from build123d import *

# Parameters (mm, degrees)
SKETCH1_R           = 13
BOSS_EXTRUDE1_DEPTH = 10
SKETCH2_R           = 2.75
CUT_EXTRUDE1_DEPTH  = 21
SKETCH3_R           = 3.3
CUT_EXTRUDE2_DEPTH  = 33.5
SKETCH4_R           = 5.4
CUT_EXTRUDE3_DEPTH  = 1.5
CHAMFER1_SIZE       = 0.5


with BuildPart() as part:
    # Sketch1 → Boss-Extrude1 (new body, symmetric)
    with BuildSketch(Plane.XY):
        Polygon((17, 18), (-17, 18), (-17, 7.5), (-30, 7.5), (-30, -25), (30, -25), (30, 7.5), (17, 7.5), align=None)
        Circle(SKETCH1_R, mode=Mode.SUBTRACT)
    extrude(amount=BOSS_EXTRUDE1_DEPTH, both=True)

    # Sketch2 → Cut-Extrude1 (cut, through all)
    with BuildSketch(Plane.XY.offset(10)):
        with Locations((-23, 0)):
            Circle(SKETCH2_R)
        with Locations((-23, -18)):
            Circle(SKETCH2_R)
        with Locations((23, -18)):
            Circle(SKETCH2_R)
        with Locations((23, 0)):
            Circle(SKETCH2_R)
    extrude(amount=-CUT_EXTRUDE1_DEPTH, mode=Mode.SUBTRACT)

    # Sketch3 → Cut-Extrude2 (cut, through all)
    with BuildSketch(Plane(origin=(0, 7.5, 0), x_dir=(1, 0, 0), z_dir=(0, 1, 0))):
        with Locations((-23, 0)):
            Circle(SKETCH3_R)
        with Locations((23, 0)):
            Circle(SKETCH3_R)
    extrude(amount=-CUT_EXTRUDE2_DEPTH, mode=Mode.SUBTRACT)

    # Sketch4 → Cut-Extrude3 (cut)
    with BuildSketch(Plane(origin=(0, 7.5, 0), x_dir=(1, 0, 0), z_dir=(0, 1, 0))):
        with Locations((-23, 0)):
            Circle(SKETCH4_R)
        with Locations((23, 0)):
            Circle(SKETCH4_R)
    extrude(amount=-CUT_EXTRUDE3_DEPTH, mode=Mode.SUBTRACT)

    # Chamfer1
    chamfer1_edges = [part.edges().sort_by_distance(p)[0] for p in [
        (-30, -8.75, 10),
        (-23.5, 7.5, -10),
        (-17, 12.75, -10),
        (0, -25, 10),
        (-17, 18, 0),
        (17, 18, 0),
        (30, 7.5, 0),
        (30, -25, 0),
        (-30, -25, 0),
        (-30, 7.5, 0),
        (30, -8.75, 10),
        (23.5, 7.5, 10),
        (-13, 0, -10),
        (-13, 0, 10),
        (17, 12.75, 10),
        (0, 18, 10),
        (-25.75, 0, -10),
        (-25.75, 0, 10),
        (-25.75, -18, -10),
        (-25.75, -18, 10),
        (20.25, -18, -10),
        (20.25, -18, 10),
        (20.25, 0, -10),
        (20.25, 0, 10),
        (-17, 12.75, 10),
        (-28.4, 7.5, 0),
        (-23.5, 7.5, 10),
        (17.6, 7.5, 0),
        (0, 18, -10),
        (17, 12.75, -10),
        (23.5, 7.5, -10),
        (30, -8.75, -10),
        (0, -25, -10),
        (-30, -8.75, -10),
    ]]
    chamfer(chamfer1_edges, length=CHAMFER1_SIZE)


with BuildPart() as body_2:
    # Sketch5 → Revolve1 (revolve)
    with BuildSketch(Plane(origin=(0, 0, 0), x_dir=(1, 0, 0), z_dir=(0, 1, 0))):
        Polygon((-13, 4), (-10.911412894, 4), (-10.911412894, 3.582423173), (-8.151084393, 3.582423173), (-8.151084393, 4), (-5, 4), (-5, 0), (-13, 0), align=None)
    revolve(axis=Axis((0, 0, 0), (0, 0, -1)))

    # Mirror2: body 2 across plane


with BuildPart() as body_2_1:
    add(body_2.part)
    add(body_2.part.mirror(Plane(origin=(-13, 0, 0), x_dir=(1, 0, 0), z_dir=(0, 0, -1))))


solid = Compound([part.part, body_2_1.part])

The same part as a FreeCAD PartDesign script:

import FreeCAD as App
import Part
import Sketcher

V = App.Vector


def edges_at(feature, points):
    """Names of the edges that pass closest to the given points."""
    edges = feature.Shape.Edges
    near = lambda p: min(range(len(edges)), key=lambda i: edges[i].distToShape(Part.Vertex(*p))[0])
    return sorted({f"Edge{near(p) + 1}" for p in points})

doc = App.newDocument("Part")
params = doc.addObject("Spreadsheet::Sheet", "Params")
for row, (alias, value) in enumerate([
    ("sketch1_diameter", "26 mm"),
    ("sketch1_width", "34 mm"),
    ("sketch1_width2", "13 mm"),
    ("sketch1_height", "10.5 mm"),
    ("sketch1_height2", "32.5 mm"),
    ("pad1_length", "20 mm"),
    ("sketch2_diameter", "5.5 mm"),
    ("sketch3_diameter", "6.6 mm"),
    ("sketch4_diameter", "10.8 mm"),
    ("pocket3_length", "1.5 mm"),
    ("chamfer_size", "0.5 mm"),
    ("sketch5_width", "8 mm"),
    ("sketch5_height", "4 mm"),
    ("revolution_angle", "360 deg"),
], start=1):
    params.set(f"A{row}", alias)
    params.set(f"B{row}", "=" + value)
    params.setAlias(f"B{row}", alias)

body = doc.addObject("PartDesign::Body", "Body")

# Sketch on XY plane
sketch1 = body.newObject("Sketcher::SketchObject", "Sketch")
sketch1.AttachmentSupport = (doc.getObject("XY_Plane"), [""])
sketch1.MapMode = "FlatFace"
sketch1.addGeometry(Part.LineSegment(V(17, 18, 0), V(-17, 18, 0)), False)
sketch1.addGeometry(Part.LineSegment(V(-17, 18, 0), V(-17, 8, 0)), False)
sketch1.addGeometry(Part.LineSegment(V(-17, 8, 0), V(-30, 8, 0)), False)
sketch1.addGeometry(Part.LineSegment(V(-30, 8, 0), V(-30, -25, 0)), False)
sketch1.addGeometry(Part.LineSegment(V(-30, -25, 0), V(30, -25, 0)), False)
sketch1.addGeometry(Part.LineSegment(V(30, -25, 0), V(30, 8, 0)), False)
sketch1.addGeometry(Part.LineSegment(V(30, 8, 0), V(17, 8, 0)), False)
sketch1.addGeometry(Part.LineSegment(V(17, 8, 0), V(17, 18, 0)), False)
sketch1.addGeometry(Part.Circle(V(0, 0, 0), V(0, 0, 1), 13), False)
sketch1.addConstraint(Sketcher.Constraint("Coincident", 0, 2, 1, 1))
sketch1.addConstraint(Sketcher.Constraint("Coincident", 1, 2, 2, 1))
sketch1.addConstraint(Sketcher.Constraint("Coincident", 2, 2, 3, 1))
sketch1.addConstraint(Sketcher.Constraint("Coincident", 3, 2, 4, 1))
sketch1.addConstraint(Sketcher.Constraint("Coincident", 4, 2, 5, 1))
sketch1.addConstraint(Sketcher.Constraint("Coincident", 5, 2, 6, 1))
sketch1.addConstraint(Sketcher.Constraint("Coincident", 6, 2, 7, 1))
sketch1.addConstraint(Sketcher.Constraint("Coincident", 7, 2, 0, 1))
sketch1.addConstraint(Sketcher.Constraint("Horizontal", 0))
sketch1.addConstraint(Sketcher.Constraint("Vertical", 1))
sketch1.addConstraint(Sketcher.Constraint("Horizontal", 2))
sketch1.addConstraint(Sketcher.Constraint("Vertical", 3))
sketch1.addConstraint(Sketcher.Constraint("Horizontal", 4))
sketch1.addConstraint(Sketcher.Constraint("Vertical", 5))
sketch1.addConstraint(Sketcher.Constraint("Horizontal", 6))
sketch1.addConstraint(Sketcher.Constraint("Vertical", 7))
sketch1.addConstraint(Sketcher.Constraint("Coincident", 8, 3, -1, 1))
sketch1.addConstraint(Sketcher.Constraint("Symmetric", 2, 2, 5, 2, -2))
sketch1.addConstraint(Sketcher.Constraint("Equal", 2, 6))
sketch1.addConstraint(Sketcher.Constraint("Diameter", 8, 26.0))
sketch1.addConstraint(Sketcher.Constraint("DistanceX", 0, 2, 0, 1, 34.0))
sketch1.addConstraint(Sketcher.Constraint("DistanceX", 2, 2, 2, 1, 13.0))
sketch1.addConstraint(Sketcher.Constraint("DistanceY", 1, 2, 1, 1, 10.5))
sketch1.addConstraint(Sketcher.Constraint("DistanceY", 3, 2, 3, 1, 32.5))
sketch1.addConstraint(Sketcher.Constraint("DistanceY", -1, 1, 0, 2, 18.0))
sketch1.setExpression("Constraints[19]", "Params.sketch1_diameter")
sketch1.setExpression("Constraints[20]", "Params.sketch1_width")
sketch1.setExpression("Constraints[21]", "Params.sketch1_width2")
sketch1.setExpression("Constraints[22]", "Params.sketch1_height")
sketch1.setExpression("Constraints[23]", "Params.sketch1_height2")
pad1 = body.newObject("PartDesign::Pad", "Pad")
pad1.Profile = sketch1
pad1.setExpression("Length", "Params.pad1_length")
pad1.Midplane = True

# Sketch on XY plane
sketch2 = body.newObject("Sketcher::SketchObject", "Sketch001")
sketch2.AttachmentSupport = (doc.getObject("XY_Plane"), [""])
sketch2.MapMode = "FlatFace"
sketch2.AttachmentOffset = App.Placement(V(0, 0, 10), App.Rotation())
sketch2.addGeometry(Part.Circle(V(-23, 0, 0), V(0, 0, 1), 2.8), False)
sketch2.addGeometry(Part.Circle(V(-23, -18, 0), V(0, 0, 1), 2.8), False)
sketch2.addGeometry(Part.Circle(V(23, -18, 0), V(0, 0, 1), 2.8), False)
sketch2.addGeometry(Part.Circle(V(23, 0, 0), V(0, 0, 1), 2.8), False)
sketch2.addConstraint(Sketcher.Constraint("Equal", 0, 1))
sketch2.addConstraint(Sketcher.Constraint("Equal", 1, 2))
sketch2.addConstraint(Sketcher.Constraint("Equal", 2, 3))
sketch2.addConstraint(Sketcher.Constraint("Symmetric", 0, 3, 3, 3, -1, 1))
sketch2.addConstraint(Sketcher.Constraint("Symmetric", 1, 3, 2, 3, -2))
sketch2.addConstraint(Sketcher.Constraint("PointOnObject", 0, 3, -1))
sketch2.addConstraint(Sketcher.Constraint("Vertical", 0, 3, 1, 3))
sketch2.addConstraint(Sketcher.Constraint("Diameter", 0, 5.5))
sketch2.addConstraint(Sketcher.Constraint("DistanceX", 0, 3, -1, 1, 23.0))
sketch2.addConstraint(Sketcher.Constraint("DistanceY", 1, 3, -1, 1, 18.0))
sketch2.setExpression("Constraints[7]", "Params.sketch2_diameter")
pocket1 = body.newObject("PartDesign::Pocket", "Pocket")
pocket1.Profile = sketch2
pocket1.Type = "ThroughAll"

# Sketch on XZ plane
sketch3 = body.newObject("Sketcher::SketchObject", "Sketch002")
sketch3.AttachmentSupport = (doc.getObject("XZ_Plane"), [""])
sketch3.MapMode = "FlatFace"
sketch3.AttachmentOffset = App.Placement(V(0, 0, -7.5), App.Rotation())
sketch3.addGeometry(Part.Circle(V(-23, 0, 0), V(0, 0, 1), 3.3), False)
sketch3.addGeometry(Part.Circle(V(23, 0, 0), V(0, 0, 1), 3.3), False)
sketch3.addConstraint(Sketcher.Constraint("Equal", 0, 1))
sketch3.addConstraint(Sketcher.Constraint("Symmetric", 0, 3, 1, 3, -1, 1))
sketch3.addConstraint(Sketcher.Constraint("PointOnObject", 0, 3, -1))
sketch3.addConstraint(Sketcher.Constraint("Diameter", 0, 6.6))
sketch3.addConstraint(Sketcher.Constraint("DistanceX", 0, 3, -1, 1, 23.0))
sketch3.setExpression("Constraints[3]", "Params.sketch3_diameter")
pocket2 = body.newObject("PartDesign::Pocket", "Pocket001")
pocket2.Profile = sketch3
pocket2.Type = "ThroughAll"
pocket2.Reversed = True

# Sketch on XZ plane
sketch4 = body.newObject("Sketcher::SketchObject", "Sketch003")
sketch4.AttachmentSupport = (doc.getObject("XZ_Plane"), [""])
sketch4.MapMode = "FlatFace"
sketch4.AttachmentOffset = App.Placement(V(0, 0, -7.5), App.Rotation())
sketch4.addGeometry(Part.Circle(V(-23, 0, 0), V(0, 0, 1), 5), False)
sketch4.addGeometry(Part.Circle(V(23, 0, 0), V(0, 0, 1), 5), False)
sketch4.addConstraint(Sketcher.Constraint("Equal", 0, 1))
sketch4.addConstraint(Sketcher.Constraint("Symmetric", 0, 3, 1, 3, -1, 1))
sketch4.addConstraint(Sketcher.Constraint("PointOnObject", 0, 3, -1))
sketch4.addConstraint(Sketcher.Constraint("Diameter", 0, 10.8))
sketch4.addConstraint(Sketcher.Constraint("DistanceX", 0, 3, -1, 1, 23.0))
sketch4.setExpression("Constraints[3]", "Params.sketch4_diameter")
pocket3 = body.newObject("PartDesign::Pocket", "Pocket002")
pocket3.Profile = sketch4
pocket3.setExpression("Length", "Params.pocket3_length")
pocket3.Reversed = True
doc.recompute()

chamfer = body.newObject("PartDesign::Chamfer", "Chamfer")
chamfer.Base = (pocket3, edges_at(pocket3, [
    (-30, -8.75, 10),
    (-23.5, 7.5, -10),
    (-17, 12.75, -10),
    (0, -25, 10),
    (-17, 18, 0),
    (17, 18, 0),
    (30, 7.5, 0),
    (30, -25, 0),
    (-30, -25, 0),
    (-30, 7.5, 0),
    (30, -8.75, 10),
    (23.5, 7.5, 10),
    (-13, 0, -10),
    (-13, 0, 10),
    (17, 12.75, 10),
    (0, 18, 10),
    (-25.75, 0, -10),
    (-25.75, 0, 10),
    (-25.75, -18, -10),
    (-25.75, -18, 10),
    (20.25, -18, -10),
    (20.25, -18, 10),
    (20.25, 0, -10),
    (20.25, 0, 10),
    (-17, 12.75, 10),
    (-28.4, 7.5, 0),
    (-23.5, 7.5, 10),
    (17.6, 7.5, 0),
    (0, 18, -10),
    (17, 12.75, -10),
    (23.5, 7.5, -10),
    (30, -8.75, -10),
    (0, -25, -10),
    (-30, -8.75, -10),
]))
chamfer.setExpression("Size", "Params.chamfer_size")
body2 = doc.addObject("PartDesign::Body", "Body001")

# Sketch on XZ plane
sketch5 = body2.newObject("Sketcher::SketchObject", "Sketch004")
sketch5.AttachmentSupport = (doc.getObject("XZ_Plane001"), [""])
sketch5.MapMode = "FlatFace"
sketch5.addGeometry(Part.LineSegment(V(-10.91, -4, 0), V(-13, -4, 0)), False)
sketch5.addGeometry(Part.LineSegment(V(-13, -4, 0), V(-13, 0, 0)), False)
sketch5.addGeometry(Part.LineSegment(V(-13, 0, 0), V(-5, 0, 0)), False)
sketch5.addGeometry(Part.LineSegment(V(-5, 0, 0), V(-5, -4, 0)), False)
sketch5.addGeometry(Part.LineSegment(V(-5, -4, 0), V(-8.15, -4, 0)), False)
sketch5.addGeometry(Part.LineSegment(V(-8.15, -4, 0), V(-8.15, -3.58, 0)), False)
sketch5.addGeometry(Part.LineSegment(V(-8.15, -3.58, 0), V(-10.91, -3.58, 0)), False)
sketch5.addGeometry(Part.LineSegment(V(-10.91, -3.58, 0), V(-10.91, -4, 0)), False)
sketch5.addConstraint(Sketcher.Constraint("Coincident", 0, 2, 1, 1))
sketch5.addConstraint(Sketcher.Constraint("Coincident", 1, 2, 2, 1))
sketch5.addConstraint(Sketcher.Constraint("Coincident", 2, 2, 3, 1))
sketch5.addConstraint(Sketcher.Constraint("Coincident", 3, 2, 4, 1))
sketch5.addConstraint(Sketcher.Constraint("Coincident", 4, 2, 5, 1))
sketch5.addConstraint(Sketcher.Constraint("Coincident", 5, 2, 6, 1))
sketch5.addConstraint(Sketcher.Constraint("Coincident", 6, 2, 7, 1))
sketch5.addConstraint(Sketcher.Constraint("Coincident", 7, 2, 0, 1))
sketch5.addConstraint(Sketcher.Constraint("Horizontal", 0))
sketch5.addConstraint(Sketcher.Constraint("Vertical", 1))
sketch5.addConstraint(Sketcher.Constraint("Horizontal", 2))
sketch5.addConstraint(Sketcher.Constraint("Vertical", 3))
sketch5.addConstraint(Sketcher.Constraint("Horizontal", 4))
sketch5.addConstraint(Sketcher.Constraint("Vertical", 5))
sketch5.addConstraint(Sketcher.Constraint("Horizontal", 6))
sketch5.addConstraint(Sketcher.Constraint("Vertical", 7))
sketch5.addConstraint(Sketcher.Constraint("PointOnObject", 1, 2, -1))
sketch5.addConstraint(Sketcher.Constraint("Horizontal", 0, 2, 3, 2))
sketch5.addConstraint(Sketcher.Constraint("DistanceX", 2, 1, 2, 2, 8.0))
sketch5.addConstraint(Sketcher.Constraint("DistanceY", 1, 1, 1, 2, 4.0))
sketch5.addConstraint(Sketcher.Constraint("DistanceX", 0, 2, -1, 1, 13.0))
sketch5.addConstraint(Sketcher.Constraint("DistanceX", 6, 2, 6, 1, 2.760329))
sketch5.addConstraint(Sketcher.Constraint("DistanceX", 0, 2, 0, 1, 2.088587))
sketch5.addConstraint(Sketcher.Constraint("DistanceY", 5, 1, 5, 2, 0.417577))
sketch5.setExpression("Constraints[18]", "Params.sketch5_width")
sketch5.setExpression("Constraints[19]", "Params.sketch5_height")
revolution = body2.newObject("PartDesign::Revolution", "Revolution")
revolution.Profile = sketch5
revolution.ReferenceAxis = (sketch5, ["V_Axis"])
revolution.setExpression("Angle", "Params.revolution_angle")
body3 = doc.addObject("PartDesign::Body", "Body002")
doc.recompute()

body3.BaseFeature = body2
doc.recompute()

mirroring = doc.addObject("Part::Mirroring", "Mirroring")
mirroring.Source = body2
mirroring.Base = V(-13, 0, 0)
mirroring.Normal = V(0, 0, -1)
body4 = doc.addObject("PartDesign::Body", "Body003")
body4.BaseFeature = mirroring
boolean = body3.newObject("PartDesign::Boolean", "Boolean")
boolean.Type = "Fuse"
boolean.addObjects([body4])
doc.recompute()
mirroring.Visibility = False

doc.recompute()
